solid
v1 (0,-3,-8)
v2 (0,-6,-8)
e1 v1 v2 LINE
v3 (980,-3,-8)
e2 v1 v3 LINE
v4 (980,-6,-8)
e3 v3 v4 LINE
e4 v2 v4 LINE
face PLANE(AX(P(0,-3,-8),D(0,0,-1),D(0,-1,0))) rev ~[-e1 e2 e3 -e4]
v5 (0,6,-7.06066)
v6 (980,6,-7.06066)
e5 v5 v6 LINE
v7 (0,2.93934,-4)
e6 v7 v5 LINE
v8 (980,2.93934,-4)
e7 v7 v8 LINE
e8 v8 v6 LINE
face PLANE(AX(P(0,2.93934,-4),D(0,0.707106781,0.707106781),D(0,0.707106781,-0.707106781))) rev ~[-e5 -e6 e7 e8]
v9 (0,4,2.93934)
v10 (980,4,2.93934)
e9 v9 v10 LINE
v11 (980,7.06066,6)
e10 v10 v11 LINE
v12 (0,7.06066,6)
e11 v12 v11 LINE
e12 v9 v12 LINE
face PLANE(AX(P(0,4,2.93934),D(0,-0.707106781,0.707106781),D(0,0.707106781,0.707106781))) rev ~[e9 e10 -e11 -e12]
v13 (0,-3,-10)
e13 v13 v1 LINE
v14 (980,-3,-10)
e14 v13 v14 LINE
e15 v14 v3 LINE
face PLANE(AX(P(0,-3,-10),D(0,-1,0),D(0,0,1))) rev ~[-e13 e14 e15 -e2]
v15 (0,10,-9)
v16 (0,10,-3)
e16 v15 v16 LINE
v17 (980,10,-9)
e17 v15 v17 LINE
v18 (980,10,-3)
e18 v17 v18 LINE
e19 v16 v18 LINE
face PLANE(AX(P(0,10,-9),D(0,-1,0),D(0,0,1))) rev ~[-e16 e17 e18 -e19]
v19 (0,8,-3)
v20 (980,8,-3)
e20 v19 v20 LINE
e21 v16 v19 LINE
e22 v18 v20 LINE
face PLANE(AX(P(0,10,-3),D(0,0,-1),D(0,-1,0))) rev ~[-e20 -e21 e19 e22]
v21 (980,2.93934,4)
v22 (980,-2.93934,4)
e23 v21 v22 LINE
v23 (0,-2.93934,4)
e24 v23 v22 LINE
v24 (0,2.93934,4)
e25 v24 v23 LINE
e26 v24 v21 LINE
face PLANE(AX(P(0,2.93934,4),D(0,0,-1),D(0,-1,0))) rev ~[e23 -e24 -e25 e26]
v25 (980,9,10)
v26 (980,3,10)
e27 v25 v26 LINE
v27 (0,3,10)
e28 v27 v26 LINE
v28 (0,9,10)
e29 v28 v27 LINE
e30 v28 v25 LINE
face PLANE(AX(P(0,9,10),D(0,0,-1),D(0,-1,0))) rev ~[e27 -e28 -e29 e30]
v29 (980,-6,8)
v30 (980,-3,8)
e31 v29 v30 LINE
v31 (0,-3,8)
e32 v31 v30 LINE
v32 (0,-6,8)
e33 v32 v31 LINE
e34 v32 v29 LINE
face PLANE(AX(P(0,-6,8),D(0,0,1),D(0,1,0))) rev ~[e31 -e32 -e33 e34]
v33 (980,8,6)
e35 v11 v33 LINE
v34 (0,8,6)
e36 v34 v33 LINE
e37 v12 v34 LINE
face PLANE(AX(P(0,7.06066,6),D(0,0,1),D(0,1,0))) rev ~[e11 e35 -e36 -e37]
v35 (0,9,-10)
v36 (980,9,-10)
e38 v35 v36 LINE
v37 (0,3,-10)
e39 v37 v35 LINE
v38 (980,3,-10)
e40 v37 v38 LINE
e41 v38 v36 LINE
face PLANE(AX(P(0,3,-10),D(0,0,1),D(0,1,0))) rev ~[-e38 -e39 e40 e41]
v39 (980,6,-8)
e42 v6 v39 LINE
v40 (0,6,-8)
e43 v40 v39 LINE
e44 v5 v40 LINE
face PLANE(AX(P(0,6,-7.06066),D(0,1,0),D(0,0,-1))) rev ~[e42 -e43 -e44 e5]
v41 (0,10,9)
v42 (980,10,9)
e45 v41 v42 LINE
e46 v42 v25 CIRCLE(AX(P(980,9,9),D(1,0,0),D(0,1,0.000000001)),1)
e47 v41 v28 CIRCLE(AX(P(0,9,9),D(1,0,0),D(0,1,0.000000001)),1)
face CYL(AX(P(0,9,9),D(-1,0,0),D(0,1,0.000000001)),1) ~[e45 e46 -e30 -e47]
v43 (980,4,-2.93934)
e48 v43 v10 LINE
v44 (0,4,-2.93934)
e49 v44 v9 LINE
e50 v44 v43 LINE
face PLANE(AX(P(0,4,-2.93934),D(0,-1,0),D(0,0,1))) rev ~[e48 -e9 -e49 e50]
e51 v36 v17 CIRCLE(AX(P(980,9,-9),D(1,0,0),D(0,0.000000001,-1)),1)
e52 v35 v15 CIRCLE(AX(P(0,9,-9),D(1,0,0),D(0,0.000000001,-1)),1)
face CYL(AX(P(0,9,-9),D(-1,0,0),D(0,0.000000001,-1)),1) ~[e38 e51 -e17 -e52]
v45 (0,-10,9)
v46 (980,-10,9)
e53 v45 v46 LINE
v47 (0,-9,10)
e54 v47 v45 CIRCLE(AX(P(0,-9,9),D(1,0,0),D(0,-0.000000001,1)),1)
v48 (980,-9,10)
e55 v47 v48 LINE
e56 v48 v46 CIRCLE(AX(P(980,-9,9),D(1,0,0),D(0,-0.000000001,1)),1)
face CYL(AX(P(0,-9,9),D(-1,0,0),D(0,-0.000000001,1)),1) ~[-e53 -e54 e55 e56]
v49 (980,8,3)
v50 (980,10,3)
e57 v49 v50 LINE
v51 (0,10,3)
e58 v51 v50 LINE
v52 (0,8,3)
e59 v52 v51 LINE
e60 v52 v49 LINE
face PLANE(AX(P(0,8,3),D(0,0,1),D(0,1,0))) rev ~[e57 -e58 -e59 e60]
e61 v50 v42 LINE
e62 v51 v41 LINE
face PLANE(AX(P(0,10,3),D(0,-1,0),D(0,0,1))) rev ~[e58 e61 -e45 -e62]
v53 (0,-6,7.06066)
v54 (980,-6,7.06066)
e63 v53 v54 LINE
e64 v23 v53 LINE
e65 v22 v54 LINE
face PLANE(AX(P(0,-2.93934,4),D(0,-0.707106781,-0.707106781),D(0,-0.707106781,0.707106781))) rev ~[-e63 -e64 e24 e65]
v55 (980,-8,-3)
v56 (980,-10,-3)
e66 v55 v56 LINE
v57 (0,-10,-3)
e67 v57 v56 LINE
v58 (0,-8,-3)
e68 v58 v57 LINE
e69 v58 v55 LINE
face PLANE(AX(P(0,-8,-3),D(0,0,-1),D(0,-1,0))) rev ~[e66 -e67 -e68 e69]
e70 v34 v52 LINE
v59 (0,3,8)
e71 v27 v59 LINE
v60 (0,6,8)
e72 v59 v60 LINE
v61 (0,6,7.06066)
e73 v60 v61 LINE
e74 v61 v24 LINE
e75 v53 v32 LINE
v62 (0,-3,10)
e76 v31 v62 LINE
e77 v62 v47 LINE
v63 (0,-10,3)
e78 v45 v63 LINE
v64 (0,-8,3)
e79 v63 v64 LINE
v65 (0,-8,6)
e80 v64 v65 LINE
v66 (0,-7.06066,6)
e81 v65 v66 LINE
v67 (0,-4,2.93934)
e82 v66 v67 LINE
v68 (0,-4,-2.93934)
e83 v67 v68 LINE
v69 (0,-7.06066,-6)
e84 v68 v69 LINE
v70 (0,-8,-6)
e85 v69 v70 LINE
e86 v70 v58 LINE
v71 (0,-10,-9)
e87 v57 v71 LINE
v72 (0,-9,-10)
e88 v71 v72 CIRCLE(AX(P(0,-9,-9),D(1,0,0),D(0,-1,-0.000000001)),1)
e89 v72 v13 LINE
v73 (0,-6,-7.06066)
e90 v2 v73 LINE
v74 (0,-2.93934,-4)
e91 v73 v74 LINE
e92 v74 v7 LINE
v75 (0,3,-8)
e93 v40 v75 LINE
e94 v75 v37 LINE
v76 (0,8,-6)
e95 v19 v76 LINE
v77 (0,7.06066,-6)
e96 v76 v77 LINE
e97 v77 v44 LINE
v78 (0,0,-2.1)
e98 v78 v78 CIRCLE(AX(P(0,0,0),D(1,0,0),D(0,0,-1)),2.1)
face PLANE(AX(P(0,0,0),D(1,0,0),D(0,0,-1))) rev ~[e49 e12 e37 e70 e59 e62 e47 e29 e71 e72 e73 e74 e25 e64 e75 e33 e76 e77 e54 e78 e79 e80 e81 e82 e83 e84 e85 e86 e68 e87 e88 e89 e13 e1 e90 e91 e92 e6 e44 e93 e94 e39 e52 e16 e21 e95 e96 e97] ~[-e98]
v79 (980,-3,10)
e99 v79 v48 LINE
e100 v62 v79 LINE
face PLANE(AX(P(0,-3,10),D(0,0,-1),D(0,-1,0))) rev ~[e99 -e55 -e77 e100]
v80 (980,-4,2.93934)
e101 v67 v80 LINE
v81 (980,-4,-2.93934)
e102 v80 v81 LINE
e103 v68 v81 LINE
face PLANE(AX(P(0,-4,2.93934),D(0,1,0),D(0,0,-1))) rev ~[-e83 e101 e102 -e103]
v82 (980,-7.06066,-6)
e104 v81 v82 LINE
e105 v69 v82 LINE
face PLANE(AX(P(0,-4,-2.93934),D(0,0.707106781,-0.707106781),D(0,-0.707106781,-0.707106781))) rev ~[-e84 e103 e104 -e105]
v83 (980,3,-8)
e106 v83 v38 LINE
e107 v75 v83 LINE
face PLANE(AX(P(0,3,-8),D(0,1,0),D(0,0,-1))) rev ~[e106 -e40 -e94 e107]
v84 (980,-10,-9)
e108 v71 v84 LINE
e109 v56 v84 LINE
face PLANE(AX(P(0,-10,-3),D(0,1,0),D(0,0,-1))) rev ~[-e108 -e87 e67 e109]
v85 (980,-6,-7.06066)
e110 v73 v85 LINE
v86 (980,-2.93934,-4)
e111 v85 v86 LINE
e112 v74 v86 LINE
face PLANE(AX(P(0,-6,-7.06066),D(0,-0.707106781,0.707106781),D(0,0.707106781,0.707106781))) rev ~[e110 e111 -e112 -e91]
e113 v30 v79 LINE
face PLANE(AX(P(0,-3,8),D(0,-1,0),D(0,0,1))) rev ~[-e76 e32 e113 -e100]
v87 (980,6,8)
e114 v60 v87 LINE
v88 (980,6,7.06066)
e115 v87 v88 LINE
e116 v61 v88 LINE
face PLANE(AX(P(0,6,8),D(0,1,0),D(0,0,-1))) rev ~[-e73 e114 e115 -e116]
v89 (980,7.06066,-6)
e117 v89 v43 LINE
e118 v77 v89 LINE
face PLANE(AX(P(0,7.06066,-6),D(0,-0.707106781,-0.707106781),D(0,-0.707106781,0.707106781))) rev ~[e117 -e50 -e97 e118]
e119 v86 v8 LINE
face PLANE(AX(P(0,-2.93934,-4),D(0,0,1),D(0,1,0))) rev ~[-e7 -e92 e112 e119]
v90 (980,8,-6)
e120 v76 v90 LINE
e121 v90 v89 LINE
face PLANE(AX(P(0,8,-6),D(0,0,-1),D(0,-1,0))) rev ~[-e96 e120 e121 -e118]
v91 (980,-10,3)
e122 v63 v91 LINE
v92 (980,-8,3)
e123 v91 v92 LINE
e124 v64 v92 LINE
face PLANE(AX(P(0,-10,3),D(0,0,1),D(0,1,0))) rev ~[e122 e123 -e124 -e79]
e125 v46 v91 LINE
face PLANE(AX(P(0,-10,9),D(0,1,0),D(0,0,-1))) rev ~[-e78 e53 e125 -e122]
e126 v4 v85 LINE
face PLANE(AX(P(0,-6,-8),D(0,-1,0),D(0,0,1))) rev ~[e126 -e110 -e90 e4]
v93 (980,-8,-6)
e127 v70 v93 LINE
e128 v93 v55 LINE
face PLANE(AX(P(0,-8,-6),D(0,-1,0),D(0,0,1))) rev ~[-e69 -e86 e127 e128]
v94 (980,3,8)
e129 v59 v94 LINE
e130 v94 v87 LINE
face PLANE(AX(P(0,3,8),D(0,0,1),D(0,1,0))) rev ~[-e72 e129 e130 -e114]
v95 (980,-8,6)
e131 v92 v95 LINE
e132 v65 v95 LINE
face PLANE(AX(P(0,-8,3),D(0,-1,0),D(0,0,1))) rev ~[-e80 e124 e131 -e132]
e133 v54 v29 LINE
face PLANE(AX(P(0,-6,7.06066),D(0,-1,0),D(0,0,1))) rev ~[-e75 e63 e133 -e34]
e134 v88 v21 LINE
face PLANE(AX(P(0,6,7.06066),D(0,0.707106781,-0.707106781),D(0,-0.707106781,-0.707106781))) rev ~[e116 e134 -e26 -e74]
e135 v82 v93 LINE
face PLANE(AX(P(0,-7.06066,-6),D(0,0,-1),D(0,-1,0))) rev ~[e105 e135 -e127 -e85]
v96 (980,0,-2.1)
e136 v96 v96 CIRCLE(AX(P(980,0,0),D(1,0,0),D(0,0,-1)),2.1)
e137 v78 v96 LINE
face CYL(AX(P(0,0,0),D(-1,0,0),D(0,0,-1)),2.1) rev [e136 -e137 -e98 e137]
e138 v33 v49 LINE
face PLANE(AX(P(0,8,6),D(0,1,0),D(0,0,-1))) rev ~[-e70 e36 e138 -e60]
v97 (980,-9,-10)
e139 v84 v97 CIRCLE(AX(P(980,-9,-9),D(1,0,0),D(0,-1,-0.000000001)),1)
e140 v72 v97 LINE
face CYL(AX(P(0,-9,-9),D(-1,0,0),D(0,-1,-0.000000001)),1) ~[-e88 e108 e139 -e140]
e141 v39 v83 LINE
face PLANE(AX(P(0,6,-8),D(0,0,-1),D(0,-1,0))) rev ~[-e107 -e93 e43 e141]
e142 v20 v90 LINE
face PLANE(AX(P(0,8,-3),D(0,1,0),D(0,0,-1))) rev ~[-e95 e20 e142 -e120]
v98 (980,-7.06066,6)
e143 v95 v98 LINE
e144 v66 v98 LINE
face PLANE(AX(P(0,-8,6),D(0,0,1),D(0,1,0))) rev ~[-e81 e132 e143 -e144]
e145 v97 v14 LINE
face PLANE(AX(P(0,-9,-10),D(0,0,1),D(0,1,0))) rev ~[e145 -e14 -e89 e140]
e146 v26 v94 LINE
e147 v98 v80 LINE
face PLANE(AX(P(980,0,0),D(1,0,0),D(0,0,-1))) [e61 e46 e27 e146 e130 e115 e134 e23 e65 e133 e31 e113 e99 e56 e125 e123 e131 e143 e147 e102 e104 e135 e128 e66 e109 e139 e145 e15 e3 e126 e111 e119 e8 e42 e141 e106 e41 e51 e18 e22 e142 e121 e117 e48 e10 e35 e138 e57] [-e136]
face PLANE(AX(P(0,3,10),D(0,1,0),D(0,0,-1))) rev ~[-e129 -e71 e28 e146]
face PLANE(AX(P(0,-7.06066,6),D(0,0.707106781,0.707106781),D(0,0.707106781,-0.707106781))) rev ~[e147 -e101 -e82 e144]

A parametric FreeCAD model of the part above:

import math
import FreeCAD as App
import Part
import Sketcher

V = App.Vector
Q = App.Units.Quantity

doc = App.newDocument("Part")
params = doc.addObject("Spreadsheet::Sheet", "Params")
for row, (alias, value) in enumerate([
    ("sketch1_radius", "1 mm"),
    ("sketch1_diameter", "4.2 mm"),
    ("sketch1_width", "6 mm"),
    ("sketch1_width2", "3 mm"),
    ("sketch1_width3", "2 mm"),
    ("pad1_length", "980 mm"),
], start=1):
    params.set(f"A{row}", alias)
    params.set(f"B{row}", "=" + value)
    params.setAlias(f"B{row}", alias)

body = doc.addObject("PartDesign::Body", "Body")

# Sketch on YZ plane
sketch1 = body.newObject("Sketcher::SketchObject", "Sketch")
sketch1.AttachmentSupport = (doc.getObject("YZ_Plane"), [""])
sketch1.MapMode = "FlatFace"
sketch1.addGeometry([
    Part.LineSegment(V(9, 10, 0), V(3, 10, 0)),  # 0
    Part.LineSegment(V(3, 10, 0), V(3, 8, 0)),  # 1
    Part.LineSegment(V(3, 8, 0), V(6, 8, 0)),  # 2
    Part.LineSegment(V(6, 8, 0), V(6, 7.06066, 0)),  # 3
    Part.LineSegment(V(6, 7.06066, 0), V(2.93934, 4, 0)),  # 4
    Part.LineSegment(V(2.93934, 4, 0), V(-2.93934, 4, 0)),  # 5
    Part.LineSegment(V(-2.93934, 4, 0), V(-6, 7.06066, 0)),  # 6
    Part.LineSegment(V(-6, 7.06066, 0), V(-6, 8, 0)),  # 7
    Part.LineSegment(V(-6, 8, 0), V(-3, 8, 0)),  # 8
    Part.LineSegment(V(-3, 8, 0), V(-3, 10, 0)),  # 9
    Part.LineSegment(V(-3, 10, 0), V(-9, 10, 0)),  # 10
    Part.ArcOfCircle(Part.Circle(V(-9, 9, 0), V(0, 0, 1), 1), math.radians(90), math.radians(180)),  # 11
    Part.LineSegment(V(-10, 9, 0), V(-10, 3, 0)),  # 12
    Part.LineSegment(V(-10, 3, 0), V(-8, 3, 0)),  # 13
    Part.LineSegment(V(-8, 3, 0), V(-8, 6, 0)),  # 14
    Part.LineSegment(V(-8, 6, 0), V(-7.06066, 6, 0)),  # 15
    Part.LineSegment(V(-7.06066, 6, 0), V(-4, 2.93934, 0)),  # 16
    Part.LineSegment(V(-4, 2.93934, 0), V(-4, -2.93934, 0)),  # 17
    Part.LineSegment(V(-4, -2.93934, 0), V(-7.06066, -6, 0)),  # 18
    Part.LineSegment(V(-7.06066, -6, 0), V(-8, -6, 0)),  # 19
    Part.LineSegment(V(-8, -6, 0), V(-8, -3, 0)),  # 20
    Part.LineSegment(V(-8, -3, 0), V(-10, -3, 0)),  # 21
    Part.LineSegment(V(-10, -3, 0), V(-10, -9, 0)),  # 22
    Part.ArcOfCircle(Part.Circle(V(-9, -9, 0), V(0, 0, 1), 1), math.radians(-180), math.radians(-90)),  # 23
    Part.LineSegment(V(-9, -10, 0), V(-3, -10, 0)),  # 24
    Part.LineSegment(V(-3, -10, 0), V(-3, -8, 0)),  # 25
    Part.LineSegment(V(-3, -8, 0), V(-6, -8, 0)),  # 26
    Part.LineSegment(V(-6, -8, 0), V(-6, -7.06066, 0)),  # 27
    Part.LineSegment(V(-6, -7.06066, 0), V(-2.93934, -4, 0)),  # 28
    Part.LineSegment(V(-2.93934, -4, 0), V(2.93934, -4, 0)),  # 29
    Part.LineSegment(V(2.93934, -4, 0), V(6, -7.06066, 0)),  # 30
    Part.LineSegment(V(6, -7.06066, 0), V(6, -8, 0)),  # 31
    Part.LineSegment(V(6, -8, 0), V(3, -8, 0)),  # 32
    Part.LineSegment(V(3, -8, 0), V(3, -10, 0)),  # 33
    Part.LineSegment(V(3, -10, 0), V(9, -10, 0)),  # 34
    Part.ArcOfCircle(Part.Circle(V(9, -9, 0), V(0, 0, 1), 1), math.radians(-90), math.radians(0)),  # 35
    Part.LineSegment(V(10, -9, 0), V(10, -3, 0)),  # 36
    Part.LineSegment(V(10, -3, 0), V(8, -3, 0)),  # 37
    Part.LineSegment(V(8, -3, 0), V(8, -6, 0)),  # 38
    Part.LineSegment(V(8, -6, 0), V(7.06066, -6, 0)),  # 39
    Part.LineSegment(V(7.06066, -6, 0), V(4, -2.93934, 0)),  # 40
    Part.LineSegment(V(4, -2.93934, 0), V(4, 2.93934, 0)),  # 41
    Part.LineSegment(V(4, 2.93934, 0), V(7.06066, 6, 0)),  # 42
    Part.LineSegment(V(7.06066, 6, 0), V(8, 6, 0)),  # 43
    Part.LineSegment(V(8, 6, 0), V(8, 3, 0)),  # 44
    Part.LineSegment(V(8, 3, 0), V(10, 3, 0)),  # 45
    Part.LineSegment(V(10, 3, 0), V(10, 9, 0)),  # 46
    Part.ArcOfCircle(Part.Circle(V(9, 9, 0), V(0, 0, 1), 1), math.radians(0), math.radians(90)),  # 47
    Part.Circle(V(0, 0, 0), V(0, 0, 1), 2.1),  # 48
], False)
sketch1.addConstraint([
    Sketcher.Constraint("Coincident", 0, 2, 1, 1),
    Sketcher.Constraint("Coincident", 1, 2, 2, 1),
    Sketcher.Constraint("Coincident", 2, 2, 3, 1),
    Sketcher.Constraint("Coincident", 3, 2, 4, 1),
    Sketcher.Constraint("Coincident", 4, 2, 5, 1),
    Sketcher.Constraint("Coincident", 5, 2, 6, 1),
    Sketcher.Constraint("Coincident", 6, 2, 7, 1),
    Sketcher.Constraint("Coincident", 7, 2, 8, 1),
    Sketcher.Constraint("Coincident", 8, 2, 9, 1),
    Sketcher.Constraint("Coincident", 9, 2, 10, 1),
    Sketcher.Constraint("Tangent", 10, 2, 11, 1),
    Sketcher.Constraint("Tangent", 11, 2, 12, 1),
    Sketcher.Constraint("Coincident", 12, 2, 13, 1),
    Sketcher.Constraint("Coincident", 13, 2, 14, 1),
    Sketcher.Constraint("Coincident", 14, 2, 15, 1),
    Sketcher.Constraint("Coincident", 15, 2, 16, 1),
    Sketcher.Constraint("Coincident", 16, 2, 17, 1),
    Sketcher.Constraint("Coincident", 17, 2, 18, 1),
    Sketcher.Constraint("Coincident", 18, 2, 19, 1),
    Sketcher.Constraint("Coincident", 19, 2, 20, 1),
    Sketcher.Constraint("Coincident", 20, 2, 21, 1),
    Sketcher.Constraint("Coincident", 21, 2, 22, 1),
    Sketcher.Constraint("Tangent", 22, 2, 23, 1),
    Sketcher.Constraint("Tangent", 23, 2, 24, 1),
    Sketcher.Constraint("Coincident", 24, 2, 25, 1),
    Sketcher.Constraint("Coincident", 25, 2, 26, 1),
    Sketcher.Constraint("Coincident", 26, 2, 27, 1),
    Sketcher.Constraint("Coincident", 27, 2, 28, 1),
    Sketcher.Constraint("Coincident", 28, 2, 29, 1),
    Sketcher.Constraint("Coincident", 29, 2, 30, 1),
    Sketcher.Constraint("Coincident", 30, 2, 31, 1),
    Sketcher.Constraint("Coincident", 31, 2, 32, 1),
    Sketcher.Constraint("Coincident", 32, 2, 33, 1),
    Sketcher.Constraint("Coincident", 33, 2, 34, 1),
    Sketcher.Constraint("Tangent", 34, 2, 35, 1),
    Sketcher.Constraint("Tangent", 35, 2, 36, 1),
    Sketcher.Constraint("Coincident", 36, 2, 37, 1),
    Sketcher.Constraint("Coincident", 37, 2, 38, 1),
    Sketcher.Constraint("Coincident", 38, 2, 39, 1),
    Sketcher.Constraint("Coincident", 39, 2, 40, 1),
    Sketcher.Constraint("Coincident", 40, 2, 41, 1),
    Sketcher.Constraint("Coincident", 41, 2, 42, 1),
    Sketcher.Constraint("Coincident", 42, 2, 43, 1),
    Sketcher.Constraint("Coincident", 43, 2, 44, 1),
    Sketcher.Constraint("Coincident", 44, 2, 45, 1),
    Sketcher.Constraint("Coincident", 45, 2, 46, 1),
    Sketcher.Constraint("Tangent", 46, 2, 47, 1),
    Sketcher.Constraint("Tangent", 47, 2, 0, 1),
    Sketcher.Constraint("Horizontal", 0),
    Sketcher.Constraint("Vertical", 1),
    Sketcher.Constraint("Horizontal", 2),
    Sketcher.Constraint("Vertical", 3),
    Sketcher.Constraint("Horizontal", 5),
    Sketcher.Constraint("Vertical", 7),
    Sketcher.Constraint("Horizontal", 8),
    Sketcher.Constraint("Vertical", 9),
    Sketcher.Constraint("Horizontal", 10),
    Sketcher.Constraint("Vertical", 12),
    Sketcher.Constraint("Horizontal", 13),
    Sketcher.Constraint("Vertical", 14),
    Sketcher.Constraint("Horizontal", 15),
    Sketcher.Constraint("Vertical", 17),
    Sketcher.Constraint("Horizontal", 19),
    Sketcher.Constraint("Vertical", 20),
    Sketcher.Constraint("Horizontal", 21),
    Sketcher.Constraint("Vertical", 22),
    Sketcher.Constraint("Horizontal", 24),
    Sketcher.Constraint("Vertical", 25),
    Sketcher.Constraint("Horizontal", 26),
    Sketcher.Constraint("Vertical", 27),
    Sketcher.Constraint("Horizontal", 29),
    Sketcher.Constraint("Vertical", 31),
    Sketcher.Constraint("Horizontal", 32),
    Sketcher.Constraint("Vertical", 33),
    Sketcher.Constraint("Horizontal", 34),
    Sketcher.Constraint("Vertical", 36),
    Sketcher.Constraint("Horizontal", 37),
    Sketcher.Constraint("Vertical", 38),
    Sketcher.Constraint("Horizontal", 39),
    Sketcher.Constraint("Vertical", 41),
    Sketcher.Constraint("Horizontal", 43),
    Sketcher.Constraint("Vertical", 44),
    Sketcher.Constraint("Horizontal", 45),
    Sketcher.Constraint("Vertical", 46),
    Sketcher.Constraint("Coincident", 48, 3, -1, 1),
    Sketcher.Constraint("Equal", 11, 23),
    Sketcher.Constraint("Equal", 23, 35),
    Sketcher.Constraint("Equal", 35, 47),
    Sketcher.Constraint("Symmetric", 11, 3, 35, 3, -1, 1),
    Sketcher.Constraint("Symmetric", 23, 3, 47, 3, -1, 1),
    Sketcher.Constraint("Symmetric", 1, 2, 25, 2, -1, 1),
    Sketcher.Constraint("Symmetric", 3, 2, 27, 2, -1, 1),
    Sketcher.Constraint("Symmetric", 4, 2, 28, 2, -1, 1),
    Sketcher.Constraint("Symmetric", 6, 2, 30, 2, -1, 1),
    Sketcher.Constraint("Symmetric", 8, 2, 32, 2, -1, 1),
    Sketcher.Constraint("Symmetric", 13, 2, 37, 2, -1, 1),
    Sketcher.Constraint("Symmetric", 15, 2, 39, 2, -1, 1),
    Sketcher.Constraint("Symmetric", 16, 2, 40, 2, -1, 1),
    Sketcher.Constraint("Symmetric", 18, 2, 42, 2, -1, 1),
    Sketcher.Constraint("Symmetric", 20, 2, 44, 2, -1, 1),
    Sketcher.Constraint("Symmetric", 23, 3, 35, 3, -2),
    Sketcher.Constraint("Symmetric", 3, 2, 6, 2, -2),
    Sketcher.Constraint("Symmetric", 1, 2, 8, 2, -2),
    Sketcher.Constraint("Symmetric", 20, 2, 37, 2, -2),
    Sketcher.Constraint("Symmetric", 18, 2, 39, 2, -2),
    Sketcher.Constraint("Perpendicular", 4, 6),
    Sketcher.Constraint("Parallel", 6, 16),
    Sketcher.Constraint("Perpendicular", 16, 18),
    Sketcher.Constraint("Perpendicular", 28, 30),
    Sketcher.Constraint("Perpendicular", 40, 42),
    Sketcher.Constraint("Horizontal", 17, 2, 40, 2),
    Sketcher.Constraint("Equal", 45, 1),
    Sketcher.Constraint("Equal", 43, 3),
    Sketcher.Constraint("Equal", 34, 12),
    Sketcher.Constraint("Equal", 32, 14),
    Sketcher.Constraint("Equal", 29, 17),
    Sketcher.Constraint("Equal", 6, 16),
    Sketcher.Constraint("Radius", 11, Q("1 mm")),
    Sketcher.Constraint("Diameter", 48, Q("4.2 mm")),
    Sketcher.Constraint("DistanceX", 0, 2, 0, 1, Q("6 mm")),
    Sketcher.Constraint("DistanceX", 2, 1, 2, 2, Q("3 mm")),
    Sketcher.Constraint("DistanceX", 13, 1, 13, 2, Q("2 mm")),
    Sketcher.Constraint("DistanceX", 11, 3, -1, 1, Q("9 mm")),
    Sketcher.Constraint("DistanceY", -1, 1, 4, 2, Q("4 mm")),
    Sketcher.Constraint("DistanceX", 5, 2, 5, 1, Q("5.87868 mm")),
])
sketch1.setExpression("Constraints[117]", "Params.sketch1_radius")
sketch1.setExpression("Constraints[118]", "Params.sketch1_diameter")
sketch1.setExpression("Constraints[119]", "Params.sketch1_width")
sketch1.setExpression("Constraints[120]", "Params.sketch1_width2")
sketch1.setExpression("Constraints[121]", "Params.sketch1_width3")
pad1 = body.newObject("PartDesign::Pad", "Pad")
pad1.Profile = sketch1
pad1.setExpression("Length", "Params.pad1_length")

doc.recompute()
